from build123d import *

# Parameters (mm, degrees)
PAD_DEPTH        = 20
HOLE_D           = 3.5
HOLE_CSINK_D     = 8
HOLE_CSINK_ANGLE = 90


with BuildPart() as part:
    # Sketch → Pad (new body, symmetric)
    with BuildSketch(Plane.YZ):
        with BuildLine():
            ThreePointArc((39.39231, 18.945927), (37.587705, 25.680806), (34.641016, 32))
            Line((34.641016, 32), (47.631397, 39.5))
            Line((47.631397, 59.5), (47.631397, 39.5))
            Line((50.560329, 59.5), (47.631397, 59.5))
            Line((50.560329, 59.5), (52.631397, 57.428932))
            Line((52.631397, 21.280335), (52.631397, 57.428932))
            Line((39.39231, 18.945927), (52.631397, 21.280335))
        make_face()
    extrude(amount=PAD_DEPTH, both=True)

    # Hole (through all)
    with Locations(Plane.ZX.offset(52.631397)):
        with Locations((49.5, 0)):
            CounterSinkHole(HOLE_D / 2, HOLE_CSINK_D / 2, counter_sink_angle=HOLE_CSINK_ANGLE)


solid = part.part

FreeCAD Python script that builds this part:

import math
import FreeCAD as App
import Part
import Sketcher

V = App.Vector
Q = App.Units.Quantity

doc = App.newDocument("Part")
params = doc.addObject("Spreadsheet::Sheet", "Params")
for row, (alias, value) in enumerate([
    ("sketch1_height", "20 mm"),
    ("sketch1_length", "15 mm"),
    ("pad1_length", "40 mm"),
    ("sketch2_diameter", "3.5 mm"),
    ("hole_diameter", "3.5 mm"),
    ("hole_csink_diameter", "8 mm"),
], start=1):
    params.set(f"A{row}", alias)
    params.set(f"B{row}", "=" + value)
    params.setAlias(f"B{row}", alias)

body = doc.addObject("PartDesign::Body", "Body")

# Sketch on YZ plane
sketch1 = body.newObject("Sketcher::SketchObject", "Sketch")
sketch1.AttachmentSupport = (doc.getObject("YZ_Plane"), [""])
sketch1.MapMode = "FlatFace"
sketch1.addGeometry(Part.ArcOfCircle(Part.Circle(V(0, 12, 0), V(0, 0, 1), 40), math.radians(10), math.radians(30)), False)
sketch1.addGeometry(Part.LineSegment(V(39.4, 18.9, 0), V(52.6, 21.3, 0)), False)
sketch1.addGeometry(Part.LineSegment(V(52.6, 21.3, 0), V(52.6, 57.4, 0)), False)
sketch1.addGeometry(Part.LineSegment(V(52.6, 57.4, 0), V(50.6, 59.5, 0)), False)
sketch1.addGeometry(Part.LineSegment(V(50.6, 59.5, 0), V(47.6, 59.5, 0)), False)
sketch1.addGeometry(Part.LineSegment(V(47.6, 59.5, 0), V(47.6, 39.5, 0)), False)
sketch1.addGeometry(Part.LineSegment(V(47.6, 39.5, 0), V(34.6, 32, 0)), False)
sketch1.addConstraint(Sketcher.Constraint("Coincident", 0, 1, 1, 1))
sketch1.addConstraint(Sketcher.Constraint("Coincident", 1, 2, 2, 1))
sketch1.addConstraint(Sketcher.Constraint("Coincident", 2, 2, 3, 1))
sketch1.addConstraint(Sketcher.Constraint("Coincident", 3, 2, 4, 1))
sketch1.addConstraint(Sketcher.Constraint("Coincident", 4, 2, 5, 1))
sketch1.addConstraint(Sketcher.Constraint("Coincident", 5, 2, 6, 1))
sketch1.addConstraint(Sketcher.Constraint("Coincident", 6, 2, 0, 2))
sketch1.addConstraint(Sketcher.Constraint("Vertical", 2))
sketch1.addConstraint(Sketcher.Constraint("Horizontal", 4))
sketch1.addConstraint(Sketcher.Constraint("Vertical", 5))
sketch1.addConstraint(Sketcher.Constraint("DistanceY", 5, 2, 5, 1, Q("20 mm")))
sketch1.addConstraint(Sketcher.Constraint("Angle", 1, Q("9.999999 deg")))
sketch1.addConstraint(Sketcher.Constraint("Angle", 3, Q("135 deg")))
sketch1.addConstraint(Sketcher.Constraint("Angle", 6, Q("-150 deg")))
sketch1.addConstraint(Sketcher.Constraint("Distance", 6, Q("15 mm")))
sketch1.addConstraint(Sketcher.Constraint("DistanceY", -1, 1, 6, 2, Q("32 mm")))
sketch1.addConstraint(Sketcher.Constraint("DistanceX", 4, 2, 2, 2, Q("5 mm")))
sketch1.addConstraint(Sketcher.Constraint("Radius", 0, Q("39.999975 mm")))
sketch1.addConstraint(Sketcher.Constraint("Distance", 1, Q("13.443321 mm")))
sketch1.addConstraint(Sketcher.Constraint("DistanceX", 4, 2, 4, 1, Q("2.928932 mm")))
sketch1.addConstraint(Sketcher.Constraint("DistanceY", 2, 1, 2, 2, Q("36.148597 mm")))
sketch1.addConstraint(Sketcher.Constraint("DistanceX", -1, 1, 0, 1, Q("39.39231 mm")))
sketch1.setExpression("Constraints[10]", "Params.sketch1_height")
sketch1.setExpression("Constraints[14]", "Params.sketch1_length")
pad1 = body.newObject("PartDesign::Pad", "Pad")
pad1.Profile = sketch1
pad1.setExpression("Length", "Params.pad1_length")
pad1.Midplane = True

# Sketch on XZ plane
sketch2 = body.newObject("Sketcher::SketchObject", "Sketch001")
sketch2.AttachmentSupport = (doc.getObject("XZ_Plane"), [""])
sketch2.MapMode = "FlatFace"
sketch2.AttachmentOffset = App.Placement(V(0, 0, -52.631397), App.Rotation())
sketch2.addGeometry(Part.Circle(V(0, 49.5, 0), V(0, 0, 1), 1.8), False)
sketch2.addConstraint(Sketcher.Constraint("PointOnObject", 0, 3, -2))
sketch2.addConstraint(Sketcher.Constraint("Diameter", 0, Q("3.5 mm")))
sketch2.addConstraint(Sketcher.Constraint("DistanceY", -1, 1, 0, 3, Q("49.5 mm")))
sketch2.setExpression("Constraints[1]", "Params.sketch2_diameter")
doc.recompute()
hole = body.newObject("PartDesign::Hole", "Hole")
hole.Profile = sketch2
hole.ThreadType = "None"
hole.setExpression("Diameter", "Params.hole_diameter")
hole.DepthType = "ThroughAll"
hole.HoleCutType = "Countersink"
hole.setExpression("HoleCutDiameter", "Params.hole_csink_diameter")
hole.HoleCutCountersinkAngle = 90
hole.Reversed = True

doc.recompute()
